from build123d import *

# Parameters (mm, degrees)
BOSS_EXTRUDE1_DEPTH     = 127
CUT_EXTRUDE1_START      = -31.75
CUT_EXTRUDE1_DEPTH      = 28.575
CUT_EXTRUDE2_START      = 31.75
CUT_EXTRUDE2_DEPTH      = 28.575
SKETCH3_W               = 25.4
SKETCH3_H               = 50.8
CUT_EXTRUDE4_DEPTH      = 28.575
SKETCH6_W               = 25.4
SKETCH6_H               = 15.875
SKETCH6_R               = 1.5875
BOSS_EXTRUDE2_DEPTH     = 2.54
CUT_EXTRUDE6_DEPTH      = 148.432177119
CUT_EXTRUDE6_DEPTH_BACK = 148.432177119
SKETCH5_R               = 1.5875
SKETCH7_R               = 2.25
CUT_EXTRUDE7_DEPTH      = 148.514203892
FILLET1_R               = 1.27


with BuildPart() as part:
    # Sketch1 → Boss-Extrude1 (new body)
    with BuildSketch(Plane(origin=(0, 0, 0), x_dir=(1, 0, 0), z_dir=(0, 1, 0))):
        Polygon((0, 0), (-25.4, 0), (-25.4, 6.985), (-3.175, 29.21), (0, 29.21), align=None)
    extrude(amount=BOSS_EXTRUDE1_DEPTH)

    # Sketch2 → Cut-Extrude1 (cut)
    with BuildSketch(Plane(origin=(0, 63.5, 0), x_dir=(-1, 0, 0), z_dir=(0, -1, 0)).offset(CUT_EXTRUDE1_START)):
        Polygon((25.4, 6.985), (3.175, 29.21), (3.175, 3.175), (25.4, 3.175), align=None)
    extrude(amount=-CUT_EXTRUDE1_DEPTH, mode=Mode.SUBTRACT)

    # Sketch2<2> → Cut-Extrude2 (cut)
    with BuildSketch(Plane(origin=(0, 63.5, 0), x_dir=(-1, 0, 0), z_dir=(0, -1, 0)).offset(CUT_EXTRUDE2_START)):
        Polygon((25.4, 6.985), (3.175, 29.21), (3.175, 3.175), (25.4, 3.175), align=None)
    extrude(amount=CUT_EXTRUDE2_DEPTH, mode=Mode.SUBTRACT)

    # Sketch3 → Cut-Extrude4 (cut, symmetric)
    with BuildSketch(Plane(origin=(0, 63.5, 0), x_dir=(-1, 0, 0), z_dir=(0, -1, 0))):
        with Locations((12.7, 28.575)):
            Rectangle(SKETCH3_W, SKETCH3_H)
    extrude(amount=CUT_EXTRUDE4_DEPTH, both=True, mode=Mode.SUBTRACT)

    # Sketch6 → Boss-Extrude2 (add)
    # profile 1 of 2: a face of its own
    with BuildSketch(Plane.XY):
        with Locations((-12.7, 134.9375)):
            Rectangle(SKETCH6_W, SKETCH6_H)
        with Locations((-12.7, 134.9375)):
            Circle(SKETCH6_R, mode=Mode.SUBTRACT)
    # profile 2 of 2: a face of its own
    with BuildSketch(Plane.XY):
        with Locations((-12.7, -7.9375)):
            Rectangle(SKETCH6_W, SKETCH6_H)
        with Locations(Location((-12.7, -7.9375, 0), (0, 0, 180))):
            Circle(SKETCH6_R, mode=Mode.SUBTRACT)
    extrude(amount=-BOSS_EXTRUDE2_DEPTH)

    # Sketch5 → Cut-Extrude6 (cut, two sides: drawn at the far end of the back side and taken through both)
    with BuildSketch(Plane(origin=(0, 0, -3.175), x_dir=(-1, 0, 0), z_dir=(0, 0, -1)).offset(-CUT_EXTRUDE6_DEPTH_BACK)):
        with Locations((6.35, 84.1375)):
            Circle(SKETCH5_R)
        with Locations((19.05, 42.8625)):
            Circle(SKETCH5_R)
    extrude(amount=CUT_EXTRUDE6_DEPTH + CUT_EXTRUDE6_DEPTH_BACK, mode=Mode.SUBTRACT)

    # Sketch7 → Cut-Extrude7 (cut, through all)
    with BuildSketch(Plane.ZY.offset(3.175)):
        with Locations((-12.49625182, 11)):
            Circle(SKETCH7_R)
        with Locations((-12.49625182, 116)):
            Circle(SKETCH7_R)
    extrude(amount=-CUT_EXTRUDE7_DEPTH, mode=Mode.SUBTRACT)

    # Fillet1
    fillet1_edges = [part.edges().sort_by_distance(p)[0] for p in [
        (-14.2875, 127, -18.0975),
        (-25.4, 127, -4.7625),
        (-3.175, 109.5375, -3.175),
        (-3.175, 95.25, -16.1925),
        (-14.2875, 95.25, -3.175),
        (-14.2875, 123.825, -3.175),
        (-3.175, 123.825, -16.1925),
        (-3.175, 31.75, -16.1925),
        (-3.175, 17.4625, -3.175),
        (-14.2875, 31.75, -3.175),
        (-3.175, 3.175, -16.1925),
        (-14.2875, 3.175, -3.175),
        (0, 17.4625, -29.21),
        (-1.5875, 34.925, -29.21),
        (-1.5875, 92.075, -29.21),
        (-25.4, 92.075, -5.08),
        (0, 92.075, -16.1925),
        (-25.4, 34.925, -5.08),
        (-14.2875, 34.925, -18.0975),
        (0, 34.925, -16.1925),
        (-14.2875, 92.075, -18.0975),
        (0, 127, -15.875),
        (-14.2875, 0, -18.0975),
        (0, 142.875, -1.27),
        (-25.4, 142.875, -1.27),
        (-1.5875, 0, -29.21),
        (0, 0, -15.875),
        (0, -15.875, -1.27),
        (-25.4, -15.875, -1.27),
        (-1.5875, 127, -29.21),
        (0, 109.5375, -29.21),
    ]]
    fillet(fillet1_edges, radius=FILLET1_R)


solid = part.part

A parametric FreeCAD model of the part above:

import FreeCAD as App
import Part
import Sketcher

V = App.Vector
Q = App.Units.Quantity


def edges_at(feature, points):
    """Names of the edges that pass closest to the given points."""
    edges = feature.Shape.Edges
    near = lambda p: min(range(len(edges)), key=lambda i: edges[i].distToShape(Part.Vertex(*p))[0])
    return sorted({f"Edge{near(p) + 1}" for p in points})


def add_polygon(sketch, points):
    """Adds a closed chain of lines whose ends are joined by coincident constraints."""
    first, n = sketch.GeometryCount, len(points)
    for a, b in zip(points, points[1:] + points[:1]):
        sketch.addGeometry(Part.LineSegment(App.Vector(*a, 0), App.Vector(*b, 0)), False)
    for i in range(n):
        sketch.addConstraint(Sketcher.Constraint("Coincident", first + i, 2, first + (i + 1) % n, 1))

doc = App.newDocument("Part")
params = doc.addObject("Spreadsheet::Sheet", "Params")
for row, (alias, value) in enumerate([
    ("sketch1_width", "1 in"),
    ("sketch1_height", "1.15 in"),
    ("sketch1_width2", "0.125 in"),
    ("pad1_length", "5 in"),
    ("sketch2_height", "0.15 in"),
    ("sketch2_width", "0.875 in"),
    ("pocket1_length", "1.125 in"),
    ("sketch3_height", "0.15 in"),
    ("sketch3_width", "0.875 in"),
    ("pocket2_length", "1.125 in"),
    ("sketch4_width", "1 in"),
    ("sketch4_height", "2 in"),
    ("pocket3_length", "2.25 in"),
    ("sketch5_width", "1 in"),
    ("sketch5_diameter", "0.125 in"),
    ("sketch5_height", "0.625 in"),
    ("pad2_length", "0.1 in"),
    ("sketch6_diameter", "0.125 in"),
    ("fillet_radius", "0.05 in"),
], start=1):
    params.set(f"A{row}", alias)
    params.set(f"B{row}", "=" + value)
    params.setAlias(f"B{row}", alias)

body = doc.addObject("PartDesign::Body", "Body")

sketch1 = body.newObject("Sketcher::SketchObject", "Sketch")
sketch1.AttachmentSupport = (doc.getObject("XZ_Plane"), [""])
sketch1.MapMode = "FlatFace"
add_polygon(sketch1, [(-25.4, 0), (0, 0), (0, -29.2), (-3.2, -29.2), (-25.4, -7)])
sketch1.addConstraint([
    Sketcher.Constraint("Horizontal", 0),
    Sketcher.Constraint("Vertical", 1),
    Sketcher.Constraint("Horizontal", 2),
    Sketcher.Constraint("Vertical", 4),
    Sketcher.Constraint("Coincident", 0, 2, -1, 1),
    Sketcher.Constraint("DistanceX", 0, 1, 0, 2, Q("1 in")),
    Sketcher.Constraint("Angle", 3, Q("135 deg")),
    Sketcher.Constraint("DistanceY", 1, 2, 1, 1, Q("1.15 in")),
    Sketcher.Constraint("DistanceX", 2, 2, 2, 1, Q("0.125 in")),
])
sketch1.setExpression("Constraints[10]", "Params.sketch1_width")
sketch1.setExpression("Constraints[12]", "Params.sketch1_height")
sketch1.setExpression("Constraints[13]", "Params.sketch1_width2")
pad1 = body.newObject("PartDesign::Pad", "Pad")
pad1.Profile = sketch1
pad1.setExpression("Length", "Params.pad1_length")
pad1.Reversed = True

sketch2 = body.newObject("Sketcher::SketchObject", "Sketch001")
sketch2.AttachmentSupport = (doc.getObject("XZ_Plane"), [""])
sketch2.MapMode = "FlatFace"
sketch2.AttachmentOffset = App.Placement(V(0, 0, -3.75 * 25.4), App.Rotation())
add_polygon(sketch2, [(-25.4, -7), (-3.2, -29.2), (-3.2, -3.2), (-25.4, -3.2)])
sketch2.addConstraint([
    Sketcher.Constraint("Vertical", 1),
    Sketcher.Constraint("Horizontal", 2),
    Sketcher.Constraint("Vertical", 3),
    Sketcher.Constraint("DistanceX", 2, 2, -1, 1, Q("1 in")),
    Sketcher.Constraint("Angle", 0, Q("-45 deg")),
    Sketcher.Constraint("DistanceY", 3, 2, 3, 1, Q("0.15 in")),
    Sketcher.Constraint("DistanceX", 2, 2, 2, 1, Q("0.875 in")),
    Sketcher.Constraint("DistanceY", 0, 2, -1, 1, Q("1.15 in")),
])
sketch2.setExpression("Constraints[9]", "Params.sketch2_height")
sketch2.setExpression("Constraints[10]", "Params.sketch2_width")
pocket1 = body.newObject("PartDesign::Pocket", "Pocket")
pocket1.Profile = sketch2
pocket1.setExpression("Length", "Params.pocket1_length")

sketch3 = body.newObject("Sketcher::SketchObject", "Sketch002")
sketch3.AttachmentSupport = (doc.getObject("XZ_Plane"), [""])
sketch3.MapMode = "FlatFace"
sketch3.AttachmentOffset = App.Placement(V(0, 0, -1.25 * 25.4), App.Rotation())
add_polygon(sketch3, [(-25.4, -7), (-3.2, -29.2), (-3.2, -3.2), (-25.4, -3.2)])
sketch3.addConstraint([
    Sketcher.Constraint("Vertical", 1),
    Sketcher.Constraint("Horizontal", 2),
    Sketcher.Constraint("Vertical", 3),
    Sketcher.Constraint("DistanceX", 2, 2, -1, 1, Q("1 in")),
    Sketcher.Constraint("Angle", 0, Q("-45 deg")),
    Sketcher.Constraint("DistanceY", 3, 2, 3, 1, Q("0.15 in")),
    Sketcher.Constraint("DistanceX", 2, 2, 2, 1, Q("0.875 in")),
    Sketcher.Constraint("DistanceY", 0, 2, -1, 1, Q("1.15 in")),
])
sketch3.setExpression("Constraints[9]", "Params.sketch3_height")
sketch3.setExpression("Constraints[10]", "Params.sketch3_width")
pocket2 = body.newObject("PartDesign::Pocket", "Pocket001")
pocket2.Profile = sketch3
pocket2.setExpression("Length", "Params.pocket2_length")
pocket2.Reversed = True

sketch4 = body.newObject("Sketcher::SketchObject", "Sketch003")
sketch4.AttachmentSupport = (doc.getObject("XZ_Plane"), [""])
sketch4.MapMode = "FlatFace"
sketch4.AttachmentOffset = App.Placement(V(0, 0, -2.5 * 25.4), App.Rotation())
add_polygon(sketch4, [(0, -54), (0, -3), (-25, -3), (-25, -54)])
sketch4.addConstraint([
    Sketcher.Constraint("Vertical", 0),
    Sketcher.Constraint("Horizontal", 1),
    Sketcher.Constraint("Vertical", 2),
    Sketcher.Constraint("Horizontal", 3),
    Sketcher.Constraint("PointOnObject", 0, 2, -2),
    Sketcher.Constraint("DistanceX", 1, 2, 1, 1, Q("1 in")),
    Sketcher.Constraint("DistanceY", 0, 1, 0, 2, Q("2 in")),
    Sketcher.Constraint("DistanceY", 0, 2, -1, 1, Q("0.125 in")),
])
sketch4.setExpression("Constraints[9]", "Params.sketch4_width")
sketch4.setExpression("Constraints[10]", "Params.sketch4_height")
pocket3 = body.newObject("PartDesign::Pocket", "Pocket002")
pocket3.Profile = sketch4
pocket3.setExpression("Length", "Params.pocket3_length")
pocket3.Midplane = True

sketch5 = body.newObject("Sketcher::SketchObject", "Sketch004")
sketch5.AttachmentSupport = (doc.getObject("XY_Plane"), [""])
sketch5.MapMode = "FlatFace"
add_polygon(sketch5, [(-25.4, 142.9), (-25.4, 127), (0, 127), (0, 142.9)])
sketch5.addGeometry(Part.Circle(V(-12.7, 134.9, 0), V(0, 0, 1), 1.6), False)
add_polygon(sketch5, [(-25.4, 0), (-25.4, -15.9), (0, -15.9), (0, 0)])
sketch5.addGeometry(Part.Circle(V(-12.7, -7.9, 0), V(0, 0, 1), 1.6), False)
sketch5.addConstraint([
    Sketcher.Constraint("Vertical", 0),
    Sketcher.Constraint("Horizontal", 1),
    Sketcher.Constraint("Vertical", 2),
    Sketcher.Constraint("Horizontal", 3),
    Sketcher.Constraint("Vertical", 5),
    Sketcher.Constraint("Horizontal", 6),
    Sketcher.Constraint("Vertical", 7),
    Sketcher.Constraint("Horizontal", 8),
    Sketcher.Constraint("Coincident", 7, 2, -1, 1),
    Sketcher.Constraint("Equal", 4, 9),
    Sketcher.Constraint("PointOnObject", 1, 2, -2),
    Sketcher.Constraint("Vertical", 4, 3, 9, 3),
    Sketcher.Constraint("Vertical", 3, 2, 5, 2),
    Sketcher.Constraint("Equal", 2, 5),
    Sketcher.Constraint("DistanceX", 1, 1, 1, 2, Q("1 in")),
    Sketcher.Constraint("Diameter", 4, Q("0.125 in")),
    Sketcher.Constraint("DistanceY", -1, 1, 0, 2, Q("5 in")),
    Sketcher.Constraint("DistanceX", 4, 3, -1, 1, Q("0.5 in")),
    Sketcher.Constraint("DistanceY", 0, 2, 0, 1, Q("0.625 in")),
    Sketcher.Constraint("DistanceY", -1, 1, 4, 3, Q("5.3125 in")),
    Sketcher.Constraint("DistanceY", 9, 3, -1, 1, Q("0.3125 in")),
])
sketch5.setExpression("Constraints[22]", "Params.sketch5_width")
sketch5.setExpression("Constraints[23]", "Params.sketch5_diameter")
sketch5.setExpression("Constraints[26]", "Params.sketch5_height")
pad2 = body.newObject("PartDesign::Pad", "Pad001")
pad2.Profile = sketch5
pad2.setExpression("Length", "Params.pad2_length")
pad2.Reversed = True

sketch6 = body.newObject("Sketcher::SketchObject", "Sketch005")
sketch6.AttachmentSupport = (doc.getObject("XY_Plane"), [""])
sketch6.MapMode = "FlatFace"
sketch6.AttachmentOffset = App.Placement(V(0, 0, -0.125 * 25.4), App.Rotation())
sketch6.addGeometry([
    Part.Circle(V(-6.3, 84.1, 0), V(0, 0, 1), 1.6),
    Part.Circle(V(-19.1, 42.9, 0), V(0, 0, 1), 1.6),
], False)
sketch6.addConstraint([
    Sketcher.Constraint("Equal", 0, 1),
    Sketcher.Constraint("Diameter", 0, Q("0.125 in")),
    Sketcher.Constraint("DistanceX", 1, 3, 0, 3, Q("0.5 in")),
    Sketcher.Constraint("DistanceX", 0, 3, -1, 1, Q("0.25 in")),
    Sketcher.Constraint("DistanceY", -1, 1, 0, 3, Q("3.3125 in")),
    Sketcher.Constraint("DistanceY", -1, 1, 1, 3, Q("1.6875 in")),
])
sketch6.setExpression("Constraints[1]", "Params.sketch6_diameter")
pocket4 = body.newObject("PartDesign::Pocket", "Pocket003")
pocket4.Profile = sketch6
pocket4.Type = "ThroughAll"
pocket4.Midplane = True

sketch7 = body.newObject("Sketcher::SketchObject", "Sketch006")
sketch7.AttachmentSupport = (doc.getObject("YZ_Plane"), [""])
sketch7.MapMode = "FlatFace"
sketch7.AttachmentOffset = App.Placement(V(0, 0, -0.125 * 25.4), App.Rotation())
sketch7.addGeometry([
    Part.Circle(V(11, -12.5, 0), V(0, 0, 1), 2.2),
    Part.Circle(V(116, -12.5, 0), V(0, 0, 1), 2.2),
], False)
sketch7.addConstraint([
    Sketcher.Constraint("Equal", 0, 1),
    Sketcher.Constraint("Horizontal", 0, 3, 1, 3),
    Sketcher.Constraint("Diameter", 0, 4.5),
    Sketcher.Constraint("DistanceX", -1, 1, 0, 3, 11.0),
    Sketcher.Constraint("DistanceX", -1, 1, 1, 3, 116.0),
    Sketcher.Constraint("DistanceY", 0, 3, -1, 1, 12.496252),
])
pocket5 = body.newObject("PartDesign::Pocket", "Pocket004")
pocket5.Profile = sketch7
pocket5.Type = "ThroughAll"
pocket5.Reversed = True
doc.recompute()

fillet = body.newObject("PartDesign::Fillet", "Fillet")
fillet.Base = (pocket5, edges_at(pocket5, [
    (-14.287, 127, -18.098),
    (-25.4, 127, -4.763),
    (-3.175, 109.537, -3.175),
    (-3.175, 95.25, -16.192),
    (-14.287, 95.25, -3.175),
    (-14.287, 123.825, -3.175),
    (-3.175, 123.825, -16.192),
    (-3.175, 31.75, -16.192),
    (-3.175, 17.462, -3.175),
    (-14.287, 31.75, -3.175),
    (-3.175, 3.175, -16.192),
    (-14.287, 3.175, -3.175),
    (0, 17.462, -29.21),
    (-1.587, 34.925, -29.21),
    (-1.587, 92.075, -29.21),
    (-25.4, 92.075, -5.08),
    (0, 92.075, -16.192),
    (-25.4, 34.925, -5.08),
    (-14.287, 34.925, -18.098),
    (0, 34.925, -16.192),
    (-14.287, 92.075, -18.098),
    (0, 127, -15.875),
    (-14.287, 0, -18.098),
    (0, 142.875, -1.27),
    (-25.4, 142.875, -1.27),
    (-1.587, 0, -29.21),
    (0, 0, -15.875),
    (0, -15.875, -1.27),
    (-25.4, -15.875, -1.27),
    (-1.587, 127, -29.21),
    (0, 109.537, -29.21),
]))
fillet.setExpression("Radius", "Params.fillet_radius")

doc.recompute()
